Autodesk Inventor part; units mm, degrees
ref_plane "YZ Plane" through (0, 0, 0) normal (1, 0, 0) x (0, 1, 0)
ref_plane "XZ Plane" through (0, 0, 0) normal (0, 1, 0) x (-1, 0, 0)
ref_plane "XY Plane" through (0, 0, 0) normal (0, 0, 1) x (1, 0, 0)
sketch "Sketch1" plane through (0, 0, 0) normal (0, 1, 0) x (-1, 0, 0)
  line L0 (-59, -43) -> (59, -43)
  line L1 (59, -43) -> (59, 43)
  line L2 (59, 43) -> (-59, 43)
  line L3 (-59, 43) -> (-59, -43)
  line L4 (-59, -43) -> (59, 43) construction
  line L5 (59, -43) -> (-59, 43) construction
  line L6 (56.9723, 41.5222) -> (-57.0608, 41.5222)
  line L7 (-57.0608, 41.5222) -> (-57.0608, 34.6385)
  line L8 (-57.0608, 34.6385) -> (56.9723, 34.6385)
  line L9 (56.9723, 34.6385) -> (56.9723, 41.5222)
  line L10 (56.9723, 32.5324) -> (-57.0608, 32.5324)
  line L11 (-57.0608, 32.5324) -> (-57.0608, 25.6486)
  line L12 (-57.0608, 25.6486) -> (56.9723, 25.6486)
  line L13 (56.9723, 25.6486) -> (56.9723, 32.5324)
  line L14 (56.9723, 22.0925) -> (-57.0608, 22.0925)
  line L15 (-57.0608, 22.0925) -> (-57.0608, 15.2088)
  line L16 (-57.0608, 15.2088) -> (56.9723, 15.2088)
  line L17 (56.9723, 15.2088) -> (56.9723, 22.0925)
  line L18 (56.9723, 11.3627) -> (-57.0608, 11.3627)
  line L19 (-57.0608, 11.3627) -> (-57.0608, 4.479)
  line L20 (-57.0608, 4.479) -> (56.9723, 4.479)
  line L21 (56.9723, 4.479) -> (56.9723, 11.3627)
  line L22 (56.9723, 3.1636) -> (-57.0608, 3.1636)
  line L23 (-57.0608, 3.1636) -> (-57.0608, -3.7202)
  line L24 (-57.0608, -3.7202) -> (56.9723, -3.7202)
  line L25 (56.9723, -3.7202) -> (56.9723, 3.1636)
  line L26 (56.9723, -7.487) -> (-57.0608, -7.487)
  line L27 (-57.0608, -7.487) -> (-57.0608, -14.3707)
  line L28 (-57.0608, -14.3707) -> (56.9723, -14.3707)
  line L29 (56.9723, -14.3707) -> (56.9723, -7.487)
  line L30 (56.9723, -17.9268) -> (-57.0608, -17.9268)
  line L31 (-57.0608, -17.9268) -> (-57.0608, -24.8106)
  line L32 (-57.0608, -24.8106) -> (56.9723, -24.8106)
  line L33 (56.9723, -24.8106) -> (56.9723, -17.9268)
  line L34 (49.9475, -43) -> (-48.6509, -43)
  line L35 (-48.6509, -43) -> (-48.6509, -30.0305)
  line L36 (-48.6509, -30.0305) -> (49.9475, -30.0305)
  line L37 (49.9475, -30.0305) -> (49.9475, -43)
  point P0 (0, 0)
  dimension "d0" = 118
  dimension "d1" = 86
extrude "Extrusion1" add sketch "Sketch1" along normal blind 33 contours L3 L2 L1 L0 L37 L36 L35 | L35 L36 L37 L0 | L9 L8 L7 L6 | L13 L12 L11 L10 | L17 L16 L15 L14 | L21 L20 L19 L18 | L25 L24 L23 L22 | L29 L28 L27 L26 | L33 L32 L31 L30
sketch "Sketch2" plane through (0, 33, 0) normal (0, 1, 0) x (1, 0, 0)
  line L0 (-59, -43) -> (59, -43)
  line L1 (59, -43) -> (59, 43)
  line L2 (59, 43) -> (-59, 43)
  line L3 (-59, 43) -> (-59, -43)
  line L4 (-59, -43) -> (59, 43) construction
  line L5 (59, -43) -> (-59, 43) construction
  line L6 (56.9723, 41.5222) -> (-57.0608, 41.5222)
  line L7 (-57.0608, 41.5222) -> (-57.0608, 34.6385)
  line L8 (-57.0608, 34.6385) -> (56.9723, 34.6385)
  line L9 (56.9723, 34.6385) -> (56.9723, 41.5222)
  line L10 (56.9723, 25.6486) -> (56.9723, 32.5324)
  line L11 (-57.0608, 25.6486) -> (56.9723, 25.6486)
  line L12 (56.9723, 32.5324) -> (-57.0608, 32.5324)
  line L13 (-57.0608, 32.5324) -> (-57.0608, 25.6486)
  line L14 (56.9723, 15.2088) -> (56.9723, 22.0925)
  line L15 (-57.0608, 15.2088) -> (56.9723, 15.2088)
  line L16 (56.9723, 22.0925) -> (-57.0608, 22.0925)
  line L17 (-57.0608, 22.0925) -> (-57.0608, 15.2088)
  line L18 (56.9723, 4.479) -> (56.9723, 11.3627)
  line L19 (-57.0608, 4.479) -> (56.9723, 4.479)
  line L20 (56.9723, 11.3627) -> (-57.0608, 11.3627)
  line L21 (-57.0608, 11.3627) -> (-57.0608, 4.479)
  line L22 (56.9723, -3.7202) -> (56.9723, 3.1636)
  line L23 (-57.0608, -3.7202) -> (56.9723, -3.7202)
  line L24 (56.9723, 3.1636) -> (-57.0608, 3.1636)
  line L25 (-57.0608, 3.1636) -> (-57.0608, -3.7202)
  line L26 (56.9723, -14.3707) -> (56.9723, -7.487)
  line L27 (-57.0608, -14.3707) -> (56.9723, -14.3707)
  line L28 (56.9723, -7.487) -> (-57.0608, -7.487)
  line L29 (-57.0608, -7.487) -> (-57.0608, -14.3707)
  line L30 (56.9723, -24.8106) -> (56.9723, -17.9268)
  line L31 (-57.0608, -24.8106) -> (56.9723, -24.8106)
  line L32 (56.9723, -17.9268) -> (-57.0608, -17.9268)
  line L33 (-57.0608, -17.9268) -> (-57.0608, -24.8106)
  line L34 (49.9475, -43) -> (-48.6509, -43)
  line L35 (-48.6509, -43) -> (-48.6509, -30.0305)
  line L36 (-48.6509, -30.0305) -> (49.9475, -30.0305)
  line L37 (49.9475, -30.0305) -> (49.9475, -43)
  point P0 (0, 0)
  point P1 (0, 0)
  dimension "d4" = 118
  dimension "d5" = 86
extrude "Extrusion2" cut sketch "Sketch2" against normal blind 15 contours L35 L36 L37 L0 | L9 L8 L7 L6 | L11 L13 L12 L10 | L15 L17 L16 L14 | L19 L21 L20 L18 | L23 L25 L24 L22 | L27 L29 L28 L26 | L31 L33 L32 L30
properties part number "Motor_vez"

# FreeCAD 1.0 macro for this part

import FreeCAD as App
import Part
import Sketcher
from FreeCAD import Vector
Q = App.Units.Quantity

doc = App.newDocument("Part")
body = doc.addObject("PartDesign::Body", "Body")

sketch1 = body.newObject("Sketcher::SketchObject", "Sketch")
sketch1.AttachmentSupport = (doc.getObject("XZ_Plane"), [""])
sketch1.MapMode = "FlatFace"
sketch1.addGeometry([
    Part.LineSegment(Vector(59, 43, 0), Vector(59, -43, 0)),
    Part.LineSegment(Vector(59, -43, 0), Vector(-59, -43, 0)),
    Part.LineSegment(Vector(-59, -43, 0), Vector(-59, 43, 0)),
    Part.LineSegment(Vector(-59, 43, 0), Vector(59, 43, 0)),
], False)
sketch1.addConstraint([
    Sketcher.Constraint("Coincident", 0, 2, 1, 1),
    Sketcher.Constraint("Coincident", 1, 2, 2, 1),
    Sketcher.Constraint("Coincident", 2, 2, 3, 1),
    Sketcher.Constraint("Coincident", 3, 2, 0, 1),
    Sketcher.Constraint("Vertical", 0),
    Sketcher.Constraint("Horizontal", 1),
    Sketcher.Constraint("Vertical", 2),
    Sketcher.Constraint("Horizontal", 3),
    Sketcher.Constraint("Symmetric", 0, 2, 2, 2, -1, 1),
    Sketcher.Constraint("DistanceX", 1, 2, 1, 1, Q("118 mm")),
    Sketcher.Constraint("DistanceY", 0, 2, 0, 1, Q("86 mm")),
])
pad1 = body.newObject("PartDesign::Pad", "Pad")
pad1.Profile = sketch1
pad1.Length = 33
pad1.Reversed = True

sketch2 = body.newObject("Sketcher::SketchObject", "Sketch001")
sketch2.AttachmentSupport = (doc.getObject("XZ_Plane"), [""])
sketch2.MapMode = "FlatFace"
sketch2.AttachmentOffset = App.Placement(Vector(0, 0, -33), App.Rotation())
sketch2.addGeometry([
    Part.LineSegment(Vector(-49, 30, 0), Vector(-49, 43, 0)),
    Part.LineSegment(Vector(-49, 43, 0), Vector(50, 43, 0)),
    Part.LineSegment(Vector(50, 43, 0), Vector(50, 30, 0)),
    Part.LineSegment(Vector(50, 30, 0), Vector(-49, 30, 0)),
    Part.LineSegment(Vector(57, -35, 0), Vector(57, -42, 0)),
    Part.LineSegment(Vector(57, -42, 0), Vector(-57, -42, 0)),
    Part.LineSegment(Vector(-57, -42, 0), Vector(-57, -35, 0)),
    Part.LineSegment(Vector(-57, -35, 0), Vector(57, -35, 0)),
    Part.LineSegment(Vector(-57, -26, 0), Vector(57, -26, 0)),
    Part.LineSegment(Vector(57, -26, 0), Vector(57, -33, 0)),
    Part.LineSegment(Vector(57, -33, 0), Vector(-57, -33, 0)),
    Part.LineSegment(Vector(-57, -33, 0), Vector(-57, -26, 0)),
    Part.LineSegment(Vector(-57, -15, 0), Vector(57, -15, 0)),
    Part.LineSegment(Vector(57, -15, 0), Vector(57, -22, 0)),
    Part.LineSegment(Vector(57, -22, 0), Vector(-57, -22, 0)),
    Part.LineSegment(Vector(-57, -22, 0), Vector(-57, -15, 0)),
    Part.LineSegment(Vector(-57, -4, 0), Vector(57, -4, 0)),
    Part.LineSegment(Vector(57, -4, 0), Vector(57, -11, 0)),
    Part.LineSegment(Vector(57, -11, 0), Vector(-57, -11, 0)),
    Part.LineSegment(Vector(-57, -11, 0), Vector(-57, -4, 0)),
    Part.LineSegment(Vector(-57, 4, 0), Vector(57, 4, 0)),
    Part.LineSegment(Vector(57, 4, 0), Vector(57, -3, 0)),
    Part.LineSegment(Vector(57, -3, 0), Vector(-57, -3, 0)),
    Part.LineSegment(Vector(-57, -3, 0), Vector(-57, 4, 0)),
    Part.LineSegment(Vector(-57, 14, 0), Vector(57, 14, 0)),
    Part.LineSegment(Vector(57, 14, 0), Vector(57, 7, 0)),
    Part.LineSegment(Vector(57, 7, 0), Vector(-57, 7, 0)),
    Part.LineSegment(Vector(-57, 7, 0), Vector(-57, 14, 0)),
    Part.LineSegment(Vector(-57, 25, 0), Vector(57, 25, 0)),
    Part.LineSegment(Vector(57, 25, 0), Vector(57, 18, 0)),
    Part.LineSegment(Vector(57, 18, 0), Vector(-57, 18, 0)),
    Part.LineSegment(Vector(-57, 18, 0), Vector(-57, 25, 0)),
], False)
sketch2.addConstraint([
    Sketcher.Constraint("Coincident", 0, 2, 1, 1),
    Sketcher.Constraint("Coincident", 1, 2, 2, 1),
    Sketcher.Constraint("Coincident", 2, 2, 3, 1),
    Sketcher.Constraint("Coincident", 3, 2, 0, 1),
    Sketcher.Constraint("Coincident", 4, 2, 5, 1),
    Sketcher.Constraint("Coincident", 5, 2, 6, 1),
    Sketcher.Constraint("Coincident", 6, 2, 7, 1),
    Sketcher.Constraint("Coincident", 7, 2, 4, 1),
    Sketcher.Constraint("Coincident", 8, 2, 9, 1),
    Sketcher.Constraint("Coincident", 9, 2, 10, 1),
    Sketcher.Constraint("Coincident", 10, 2, 11, 1),
    Sketcher.Constraint("Coincident", 11, 2, 8, 1),
    Sketcher.Constraint("Coincident", 12, 2, 13, 1),
    Sketcher.Constraint("Coincident", 13, 2, 14, 1),
    Sketcher.Constraint("Coincident", 14, 2, 15, 1),
    Sketcher.Constraint("Coincident", 15, 2, 12, 1),
    Sketcher.Constraint("Coincident", 16, 2, 17, 1),
    Sketcher.Constraint("Coincident", 17, 2, 18, 1),
    Sketcher.Constraint("Coincident", 18, 2, 19, 1),
    Sketcher.Constraint("Coincident", 19, 2, 16, 1),
    Sketcher.Constraint("Coincident", 20, 2, 21, 1),
    Sketcher.Constraint("Coincident", 21, 2, 22, 1),
    Sketcher.Constraint("Coincident", 22, 2, 23, 1),
    Sketcher.Constraint("Coincident", 23, 2, 20, 1),
    Sketcher.Constraint("Coincident", 24, 2, 25, 1),
    Sketcher.Constraint("Coincident", 25, 2, 26, 1),
    Sketcher.Constraint("Coincident", 26, 2, 27, 1),
    Sketcher.Constraint("Coincident", 27, 2, 24, 1),
    Sketcher.Constraint("Coincident", 28, 2, 29, 1),
    Sketcher.Constraint("Coincident", 29, 2, 30, 1),
    Sketcher.Constraint("Coincident", 30, 2, 31, 1),
    Sketcher.Constraint("Coincident", 31, 2, 28, 1),
    Sketcher.Constraint("Vertical", 0),
    Sketcher.Constraint("Horizontal", 1),
    Sketcher.Constraint("Vertical", 2),
    Sketcher.Constraint("Horizontal", 3),
    Sketcher.Constraint("Vertical", 4),
    Sketcher.Constraint("Horizontal", 5),
    Sketcher.Constraint("Vertical", 6),
    Sketcher.Constraint("Horizontal", 7),
    Sketcher.Constraint("Horizontal", 8),
    Sketcher.Constraint("Vertical", 9),
    Sketcher.Constraint("Horizontal", 10),
    Sketcher.Constraint("Vertical", 11),
    Sketcher.Constraint("Horizontal", 12),
    Sketcher.Constraint("Vertical", 13),
    Sketcher.Constraint("Horizontal", 14),
    Sketcher.Constraint("Vertical", 15),
    Sketcher.Constraint("Horizontal", 16),
    Sketcher.Constraint("Vertical", 17),
    Sketcher.Constraint("Horizontal", 18),
    Sketcher.Constraint("Vertical", 19),
    Sketcher.Constraint("Horizontal", 20),
    Sketcher.Constraint("Vertical", 21),
    Sketcher.Constraint("Horizontal", 22),
    Sketcher.Constraint("Vertical", 23),
    Sketcher.Constraint("Horizontal", 24),
    Sketcher.Constraint("Vertical", 25),
    Sketcher.Constraint("Horizontal", 26),
    Sketcher.Constraint("Vertical", 27),
    Sketcher.Constraint("Horizontal", 28),
    Sketcher.Constraint("Vertical", 29),
    Sketcher.Constraint("Horizontal", 30),
    Sketcher.Constraint("Vertical", 31),
    Sketcher.Constraint("Vertical", 7, 2, 8, 2),
    Sketcher.Constraint("Vertical", 6, 2, 10, 2),
    Sketcher.Constraint("Vertical", 9, 2, 12, 2),
    Sketcher.Constraint("Vertical", 11, 2, 14, 2),
    Sketcher.Constraint("Vertical", 13, 2, 16, 2),
    Sketcher.Constraint("Vertical", 15, 2, 18, 2),
    Sketcher.Constraint("Vertical", 17, 2, 20, 2),
    Sketcher.Constraint("Vertical", 19, 2, 22, 2),
    Sketcher.Constraint("Vertical", 21, 2, 24, 2),
    Sketcher.Constraint("Vertical", 23, 2, 26, 2),
    Sketcher.Constraint("Vertical", 25, 2, 28, 2),
    Sketcher.Constraint("Vertical", 27, 2, 30, 2),
    Sketcher.Constraint("Equal", 6, 9),
    Sketcher.Constraint("Equal", 11, 13),
    Sketcher.Constraint("Equal", 15, 17),
    Sketcher.Constraint("Equal", 19, 21),
    Sketcher.Constraint("Equal", 23, 25),
    Sketcher.Constraint("Equal", 27, 29),
    Sketcher.Constraint("DistanceY", -1, 1, 0, 2, Q("43 mm")),
    Sketcher.Constraint("DistanceX", 5, 2, 5, 1, Q("114.033 mm")),
    Sketcher.Constraint("DistanceX", 5, 2, 3, 2, Q("8.41 mm")),
    Sketcher.Constraint("DistanceY", 7, 2, 8, 2, Q("8.99 mm")),
    Sketcher.Constraint("DistanceY", 9, 2, 13, 2, Q("10.44 mm")),
    Sketcher.Constraint("DistanceY", 28, 2, 2, 2, Q("5.22 mm")),
    Sketcher.Constraint("DistanceY", 24, 2, 28, 2, Q("10.44 mm")),
    Sketcher.Constraint("DistanceX", 1, 1, 1, 2, Q("98.5984 mm")),
    Sketcher.Constraint("DistanceY", 0, 1, 0, 2, Q("12.9695 mm")),
    Sketcher.Constraint("DistanceY", 4, 2, 4, 1, Q("6.8837 mm")),
    Sketcher.Constraint("DistanceX", 0, 2, -1, 1, Q("48.651 mm")),
    Sketcher.Constraint("DistanceY", 16, 2, -1, 1, Q("4.479 mm")),
    Sketcher.Constraint("DistanceY", 6, 2, 3, 2, Q("64.669 mm")),
    Sketcher.Constraint("DistanceY", 17, 2, 20, 2, Q("15.083 mm")),
])
pocket1 = body.newObject("PartDesign::Pocket", "Pocket")
pocket1.Profile = sketch2
pocket1.Length = 15
pocket1.Reversed = True

doc.recompute()
